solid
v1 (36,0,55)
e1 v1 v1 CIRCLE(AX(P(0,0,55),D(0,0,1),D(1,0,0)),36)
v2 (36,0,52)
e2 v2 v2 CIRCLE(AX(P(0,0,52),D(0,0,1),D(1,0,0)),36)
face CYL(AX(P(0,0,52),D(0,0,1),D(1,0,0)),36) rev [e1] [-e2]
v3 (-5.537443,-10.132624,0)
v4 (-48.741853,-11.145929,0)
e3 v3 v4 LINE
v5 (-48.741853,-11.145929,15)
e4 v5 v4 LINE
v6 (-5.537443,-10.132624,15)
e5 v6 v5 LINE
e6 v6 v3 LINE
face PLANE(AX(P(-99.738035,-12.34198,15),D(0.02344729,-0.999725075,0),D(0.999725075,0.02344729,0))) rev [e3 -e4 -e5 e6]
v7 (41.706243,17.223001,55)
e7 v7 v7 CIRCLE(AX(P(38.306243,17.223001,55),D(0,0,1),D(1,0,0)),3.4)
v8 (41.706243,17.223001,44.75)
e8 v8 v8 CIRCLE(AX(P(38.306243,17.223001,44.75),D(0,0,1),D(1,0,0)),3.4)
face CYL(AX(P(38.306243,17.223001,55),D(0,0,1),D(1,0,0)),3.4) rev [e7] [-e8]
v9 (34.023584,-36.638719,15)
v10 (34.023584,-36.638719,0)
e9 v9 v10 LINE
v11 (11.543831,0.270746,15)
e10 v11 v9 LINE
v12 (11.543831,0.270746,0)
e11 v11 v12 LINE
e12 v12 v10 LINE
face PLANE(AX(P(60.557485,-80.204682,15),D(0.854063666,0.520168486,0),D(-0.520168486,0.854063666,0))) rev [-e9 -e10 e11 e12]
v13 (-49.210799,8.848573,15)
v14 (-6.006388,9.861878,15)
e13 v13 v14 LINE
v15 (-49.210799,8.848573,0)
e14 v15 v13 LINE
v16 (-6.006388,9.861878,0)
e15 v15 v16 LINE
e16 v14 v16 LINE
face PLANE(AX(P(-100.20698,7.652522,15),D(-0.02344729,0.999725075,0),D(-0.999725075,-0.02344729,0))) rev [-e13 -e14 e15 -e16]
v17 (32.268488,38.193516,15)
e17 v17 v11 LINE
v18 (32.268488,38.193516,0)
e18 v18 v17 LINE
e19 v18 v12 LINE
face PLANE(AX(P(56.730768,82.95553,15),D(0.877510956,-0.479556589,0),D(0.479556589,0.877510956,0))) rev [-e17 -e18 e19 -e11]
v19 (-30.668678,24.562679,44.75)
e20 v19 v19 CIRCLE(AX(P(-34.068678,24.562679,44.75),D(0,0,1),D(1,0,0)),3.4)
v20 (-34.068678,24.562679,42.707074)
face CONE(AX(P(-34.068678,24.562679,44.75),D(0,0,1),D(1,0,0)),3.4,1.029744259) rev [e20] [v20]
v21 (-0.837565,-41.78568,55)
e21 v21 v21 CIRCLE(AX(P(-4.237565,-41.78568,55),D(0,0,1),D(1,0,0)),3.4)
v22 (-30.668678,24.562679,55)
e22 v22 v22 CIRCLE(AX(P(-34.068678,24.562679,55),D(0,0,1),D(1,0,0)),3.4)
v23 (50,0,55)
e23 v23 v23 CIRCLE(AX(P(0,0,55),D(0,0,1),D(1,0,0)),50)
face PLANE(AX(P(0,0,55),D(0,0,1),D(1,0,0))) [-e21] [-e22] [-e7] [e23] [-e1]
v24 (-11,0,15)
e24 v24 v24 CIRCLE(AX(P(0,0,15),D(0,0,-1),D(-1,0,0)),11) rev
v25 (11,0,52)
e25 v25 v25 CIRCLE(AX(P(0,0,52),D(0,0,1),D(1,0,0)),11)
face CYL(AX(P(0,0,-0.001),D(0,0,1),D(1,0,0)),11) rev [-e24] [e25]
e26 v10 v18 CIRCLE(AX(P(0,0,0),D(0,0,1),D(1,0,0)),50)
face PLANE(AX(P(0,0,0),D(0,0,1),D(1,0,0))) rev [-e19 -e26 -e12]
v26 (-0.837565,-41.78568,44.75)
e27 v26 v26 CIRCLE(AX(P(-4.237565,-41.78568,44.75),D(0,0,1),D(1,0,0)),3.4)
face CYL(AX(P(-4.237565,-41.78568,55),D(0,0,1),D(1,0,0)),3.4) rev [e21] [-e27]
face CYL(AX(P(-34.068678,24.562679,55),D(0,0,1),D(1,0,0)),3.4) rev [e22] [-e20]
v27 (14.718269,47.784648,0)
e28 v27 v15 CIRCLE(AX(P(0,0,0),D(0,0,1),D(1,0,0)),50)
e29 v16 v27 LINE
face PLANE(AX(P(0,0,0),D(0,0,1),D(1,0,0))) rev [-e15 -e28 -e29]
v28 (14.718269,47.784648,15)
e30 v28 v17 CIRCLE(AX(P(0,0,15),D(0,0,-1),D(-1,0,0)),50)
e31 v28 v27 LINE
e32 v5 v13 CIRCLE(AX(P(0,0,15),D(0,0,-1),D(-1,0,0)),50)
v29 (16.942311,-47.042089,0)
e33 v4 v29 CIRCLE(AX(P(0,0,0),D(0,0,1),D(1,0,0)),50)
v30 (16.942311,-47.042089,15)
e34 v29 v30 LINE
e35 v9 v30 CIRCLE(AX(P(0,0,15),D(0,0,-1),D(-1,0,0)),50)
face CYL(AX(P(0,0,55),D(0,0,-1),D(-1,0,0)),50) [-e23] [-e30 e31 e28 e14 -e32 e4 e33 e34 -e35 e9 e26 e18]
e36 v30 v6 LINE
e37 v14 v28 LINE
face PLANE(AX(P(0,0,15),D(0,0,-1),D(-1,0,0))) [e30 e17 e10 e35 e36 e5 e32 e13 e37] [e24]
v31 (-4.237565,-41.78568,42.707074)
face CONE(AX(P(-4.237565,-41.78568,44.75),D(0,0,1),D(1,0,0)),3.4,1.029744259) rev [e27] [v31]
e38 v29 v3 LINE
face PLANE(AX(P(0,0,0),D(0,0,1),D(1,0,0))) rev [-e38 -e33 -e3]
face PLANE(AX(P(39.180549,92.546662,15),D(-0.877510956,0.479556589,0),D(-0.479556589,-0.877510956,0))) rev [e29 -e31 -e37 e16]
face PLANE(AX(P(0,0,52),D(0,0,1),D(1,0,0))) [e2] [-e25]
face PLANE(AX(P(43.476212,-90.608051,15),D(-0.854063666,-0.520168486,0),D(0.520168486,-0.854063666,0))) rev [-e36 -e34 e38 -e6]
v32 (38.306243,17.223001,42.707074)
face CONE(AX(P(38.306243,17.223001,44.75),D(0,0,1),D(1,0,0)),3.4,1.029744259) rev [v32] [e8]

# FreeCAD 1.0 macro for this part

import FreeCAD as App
import Part
import Sketcher
from FreeCAD import Vector
Q = App.Units.Quantity

doc = App.newDocument("Part")
params = doc.addObject("Spreadsheet::Sheet", "Params")
for row, (alias, value) in enumerate([
    ("sketch1_diameter", "100 mm"),
    ("pad1_length", "55 mm"),
    ("sketch2_diameter", "72 mm"),
    ("pocket1_length", "3 mm"),
    ("sketch3_diameter", "22 mm"),
    ("sketch4_diameter", "6.8 mm"),
    ("hole_diameter", "6.8 mm"),
    ("hole_depth", "10.25 mm"),
    ("sketch5_length", "20 mm"),
    ("pocket3_length", "15 mm"),
], start=1):
    params.set(f"A{row}", alias)
    params.set(f"B{row}", "=" + value)
    params.setAlias(f"B{row}", alias)

body = doc.addObject("PartDesign::Body", "Body")

sketch1 = body.newObject("Sketcher::SketchObject", "Sketch")
sketch1.AttachmentSupport = (doc.getObject("XY_Plane"), [""])
sketch1.MapMode = "FlatFace"
sketch1.addGeometry(Part.Circle(Vector(0, 0, 0), Vector(0, 0, 1), 50), False)
sketch1.addConstraint([
    Sketcher.Constraint("Coincident", 0, 3, -1, 1),
    Sketcher.Constraint("Diameter", 0, Q("100 mm")),
])
sketch1.setExpression("Constraints[1]", "Params.sketch1_diameter")
pad1 = body.newObject("PartDesign::Pad", "Pad")
pad1.Profile = sketch1
pad1.setExpression("Length", "Params.pad1_length")

sketch2 = body.newObject("Sketcher::SketchObject", "Sketch001")
sketch2.AttachmentSupport = (doc.getObject("XY_Plane"), [""])
sketch2.MapMode = "FlatFace"
sketch2.AttachmentOffset = App.Placement(Vector(0, 0, 55), App.Rotation())
sketch2.addGeometry(Part.Circle(Vector(0, 0, 0), Vector(0, 0, 1), 36), False)
sketch2.addConstraint([
    Sketcher.Constraint("Coincident", 0, 3, -1, 1),
    Sketcher.Constraint("Diameter", 0, Q("72 mm")),
])
sketch2.setExpression("Constraints[1]", "Params.sketch2_diameter")
pocket1 = body.newObject("PartDesign::Pocket", "Pocket")
pocket1.Profile = sketch2
pocket1.setExpression("Length", "Params.pocket1_length")

sketch3 = body.newObject("Sketcher::SketchObject", "Sketch002")
sketch3.AttachmentSupport = (doc.getObject("XY_Plane"), [""])
sketch3.MapMode = "FlatFace"
sketch3.AttachmentOffset = App.Placement(Vector(0, 0, 52), App.Rotation())
sketch3.addGeometry(Part.Circle(Vector(0, 0, 0), Vector(0, 0, 1), 11), False)
sketch3.addConstraint([
    Sketcher.Constraint("Coincident", 0, 3, -1, 1),
    Sketcher.Constraint("Diameter", 0, Q("22 mm")),
])
sketch3.setExpression("Constraints[1]", "Params.sketch3_diameter")
pocket2 = body.newObject("PartDesign::Pocket", "Pocket001")
pocket2.Profile = sketch3
pocket2.Type = "UpToFirst"

sketch4 = body.newObject("Sketcher::SketchObject", "Sketch003")
sketch4.AttachmentSupport = (doc.getObject("XY_Plane"), [""])
sketch4.MapMode = "FlatFace"
sketch4.AttachmentOffset = App.Placement(Vector(0, 0, 55), App.Rotation())
sketch4.addGeometry([
    Part.Circle(Vector(-34.1, 24.6, 0), Vector(0, 0, 1), 3.4),
    Part.Circle(Vector(38.3, 17.2, 0), Vector(0, 0, 1), 3.4),
    Part.Circle(Vector(-4.2, -41.8, 0), Vector(0, 0, 1), 3.4),
    Part.Circle(Vector(0, 0, 0), Vector(0, 0, 1), 3.4),
], False)
sketch4.addConstraint([
    Sketcher.Constraint("Coincident", 3, 3, -1, 1),
    Sketcher.Constraint("Equal", 0, 1),
    Sketcher.Constraint("Equal", 1, 2),
    Sketcher.Constraint("Equal", 2, 3),
    Sketcher.Constraint("Diameter", 0, Q("6.8 mm")),
    Sketcher.Constraint("DistanceY", -1, 1, 1, 3, Q("17.223001 mm")),
    Sketcher.Constraint("DistanceY", -1, 1, 0, 3, Q("24.562679 mm")),
    Sketcher.Constraint("DistanceY", 2, 3, -1, 1, Q("41.78568 mm")),
    Sketcher.Constraint("DistanceX", 0, 3, 1, 3, Q("72.374921 mm")),
    Sketcher.Constraint("DistanceX", 2, 3, 1, 3, Q("42.543808 mm")),
    Sketcher.Constraint("DistanceX", 0, 3, -1, 1, Q("34.068678 mm")),
])
sketch4.setExpression("Constraints[4]", "Params.sketch4_diameter")
doc.recompute()
hole = body.newObject("PartDesign::Hole", "Hole")
hole.Profile = sketch4
hole.ThreadType = "None"
hole.setExpression("Diameter", "Params.hole_diameter")
hole.DepthType = "Dimension"
hole.setExpression("Depth", "Params.hole_depth")
hole.DrillPoint = "Angled"
hole.DrillPointAngle = 118

sketch5 = body.newObject("Sketcher::SketchObject", "Sketch004")
sketch5.AttachmentSupport = (doc.getObject("XY_Plane"), [""])
sketch5.MapMode = "FlatFace"
sketch5.addGeometry([
    Part.LineSegment(Vector(57, 83, 0), Vector(12, 0, 0)),
    Part.LineSegment(Vector(12, 0, 0), Vector(61, -80, 0)),
    Part.LineSegment(Vector(61, -80, 0), Vector(43, -91, 0)),
    Part.LineSegment(Vector(43, -91, 0), Vector(-6, -10, 0)),
    Part.LineSegment(Vector(-6, -10, 0), Vector(-100, -12, 0)),
    Part.LineSegment(Vector(-100, -12, 0), Vector(-100, 8, 0)),
    Part.LineSegment(Vector(-100, 8, 0), Vector(-6, 10, 0)),
    Part.LineSegment(Vector(-6, 10, 0), Vector(39, 93, 0)),
    Part.LineSegment(Vector(39, 93, 0), Vector(57, 83, 0)),
], False)
sketch5.addConstraint([
    Sketcher.Constraint("Coincident", 0, 2, 1, 1),
    Sketcher.Constraint("Coincident", 1, 2, 2, 1),
    Sketcher.Constraint("Coincident", 2, 2, 3, 1),
    Sketcher.Constraint("Coincident", 3, 2, 4, 1),
    Sketcher.Constraint("Coincident", 4, 2, 5, 1),
    Sketcher.Constraint("Coincident", 5, 2, 6, 1),
    Sketcher.Constraint("Coincident", 6, 2, 7, 1),
    Sketcher.Constraint("Coincident", 7, 2, 8, 1),
    Sketcher.Constraint("Coincident", 8, 2, 0, 1),
    Sketcher.Constraint("Perpendicular", 1, 2),
    Sketcher.Constraint("Perpendicular", 2, 3),
    Sketcher.Constraint("Perpendicular", 4, 5),
    Sketcher.Constraint("Perpendicular", 5, 6),
    Sketcher.Constraint("Parallel", 0, 7),
    Sketcher.Constraint("Perpendicular", 7, 8),
    Sketcher.Constraint("Equal", 0, 1),
    Sketcher.Constraint("Equal", 1, 3),
    Sketcher.Constraint("Equal", 3, 4),
    Sketcher.Constraint("Equal", 2, 5),
    Sketcher.Constraint("Equal", 4, 6),
    Sketcher.Constraint("Equal", 6, 7),
    Sketcher.Constraint("Equal", 5, 8),
    Sketcher.Constraint("Distance", 2, Q("20 mm")),
    Sketcher.Constraint("DistanceX", 6, 2, 2, 2, Q("49.4826 mm")),
    Sketcher.Constraint("DistanceX", -1, 1, 0, 2, Q("11.543831 mm")),
    Sketcher.Constraint("DistanceY", 1, 2, -1, 1, Q("80.204682 mm")),
    Sketcher.Constraint("DistanceX", -1, 1, 2, 2, Q("43.476212 mm")),
])
sketch5.setExpression("Constraints[22]", "Params.sketch5_length")
pocket3 = body.newObject("PartDesign::Pocket", "Pocket002")
pocket3.Profile = sketch5
pocket3.setExpression("Length", "Params.pocket3_length")
pocket3.Reversed = True

doc.recompute()
